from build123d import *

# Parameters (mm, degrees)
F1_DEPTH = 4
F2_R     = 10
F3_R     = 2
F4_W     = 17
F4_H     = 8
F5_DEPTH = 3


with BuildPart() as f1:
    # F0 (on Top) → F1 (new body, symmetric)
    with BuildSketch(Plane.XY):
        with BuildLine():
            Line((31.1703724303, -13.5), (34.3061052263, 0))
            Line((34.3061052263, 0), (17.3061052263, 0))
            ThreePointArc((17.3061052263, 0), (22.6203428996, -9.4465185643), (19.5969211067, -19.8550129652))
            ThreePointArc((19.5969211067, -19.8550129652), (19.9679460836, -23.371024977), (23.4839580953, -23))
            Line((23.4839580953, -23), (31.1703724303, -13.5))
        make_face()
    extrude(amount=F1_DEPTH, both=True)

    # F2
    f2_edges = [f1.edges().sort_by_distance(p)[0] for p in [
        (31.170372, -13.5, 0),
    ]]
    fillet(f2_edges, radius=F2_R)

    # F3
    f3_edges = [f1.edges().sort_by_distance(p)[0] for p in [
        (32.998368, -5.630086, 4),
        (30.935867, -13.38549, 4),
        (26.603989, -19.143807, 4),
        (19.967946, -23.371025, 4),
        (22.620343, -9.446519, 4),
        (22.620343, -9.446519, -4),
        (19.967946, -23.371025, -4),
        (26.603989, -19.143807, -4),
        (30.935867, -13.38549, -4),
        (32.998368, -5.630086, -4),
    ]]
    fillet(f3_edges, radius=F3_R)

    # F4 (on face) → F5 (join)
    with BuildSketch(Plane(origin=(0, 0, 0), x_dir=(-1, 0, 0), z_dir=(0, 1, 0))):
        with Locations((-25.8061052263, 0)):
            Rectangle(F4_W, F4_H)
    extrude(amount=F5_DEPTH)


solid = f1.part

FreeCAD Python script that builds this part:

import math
import FreeCAD as App
import Part
import Sketcher
Q = App.Units.Quantity


def edges_at(feature, points):
    """Names of the edges that pass closest to the given points."""
    edges = feature.Shape.Edges
    near = lambda p: min(range(len(edges)), key=lambda i: edges[i].distToShape(Part.Vertex(*p))[0])
    return sorted({f"Edge{near(p) + 1}" for p in points})


def add_polygon(sketch, points):
    """Adds a closed chain of lines whose ends are joined by coincident constraints."""
    first, n = sketch.GeometryCount, len(points)
    for a, b in zip(points, points[1:] + points[:1]):
        sketch.addGeometry(Part.LineSegment(App.Vector(*a, 0), App.Vector(*b, 0)), False)
    for i in range(n):
        sketch.addConstraint(Sketcher.Constraint("Coincident", first + i, 2, first + (i + 1) % n, 1))

doc = App.newDocument("Part")
params = doc.addObject("Spreadsheet::Sheet", "Params")
for row, (alias, value) in enumerate([
    ("sketch1_radius", "2.5 mm"),
    ("sketch1_width", "17 mm"),
    ("pad1_length", "8 mm"),
    ("fillet_radius", "10 mm"),
    ("fillet2_radius", "2 mm"),
    ("sketch2_width", "17 mm"),
    ("sketch2_height", "8 mm"),
    ("pad2_length", "3 mm"),
], start=1):
    params.set(f"A{row}", alias)
    params.set(f"B{row}", "=" + value)
    params.setAlias(f"B{row}", alias)

body = doc.addObject("PartDesign::Body", "Body")

# Sketch on XY plane
sketch1 = body.newObject("Sketcher::SketchObject", "Sketch")
sketch1.AttachmentSupport = (doc.getObject("XY_Plane"), [""])
sketch1.MapMode = "FlatFace"
sketch1.addGeometry([
    Part.LineSegment(App.Vector(31.170372, -13.5, 0), App.Vector(34.306105, 0, 0)),  # 0
    Part.LineSegment(App.Vector(34.306105, 0, 0), App.Vector(17.306105, 0, 0)),  # 1
    Part.ArcOfCircle(Part.Circle(App.Vector(8.715418, -11.05083, 0), App.Vector(0, 0, 1), 13.997169), math.radians(-38.976192), math.radians(52.139243)),  # 2
    Part.ArcOfCircle(Part.Circle(App.Vector(21.54044, -21.427506, 0), App.Vector(0, 0, 1), 2.5), math.radians(141.023808), math.radians(321.023808)),  # 3
    Part.LineSegment(App.Vector(23.483958, -23, 0), App.Vector(31.170372, -13.5, 0)),  # 4
], False)
sketch1.addConstraint([
    Sketcher.Constraint("Coincident", 0, 2, 1, 1),
    Sketcher.Constraint("Coincident", 1, 2, 2, 2),
    Sketcher.Constraint("Tangent", 2, 1, 3, 1),
    Sketcher.Constraint("Tangent", 3, 2, 4, 1),
    Sketcher.Constraint("Coincident", 4, 2, 0, 1),
    Sketcher.Constraint("Horizontal", 1),
    Sketcher.Constraint("PointOnObject", 0, 2, -1),
    Sketcher.Constraint("Radius", 3, Q("2.5 mm")),
    Sketcher.Constraint("DistanceX", 1, 2, 1, 1, Q("17 mm")),
    Sketcher.Constraint("DistanceY", 3, 2, -1, 1, Q("23 mm")),
    Sketcher.Constraint("DistanceY", 4, 2, -1, 1, Q("13.5 mm")),
    Sketcher.Constraint("Radius", 2, Q("13.997169 mm")),
    Sketcher.Constraint("DistanceX", -1, 1, 2, 3, Q("8.715418 mm")),
    Sketcher.Constraint("DistanceY", 2, 3, -1, 1, Q("11.05083 mm")),
    Sketcher.Constraint("DistanceX", -1, 1, 3, 3, Q("21.54044 mm")),
])
sketch1.setExpression("Constraints[7]", "Params.sketch1_radius")
sketch1.setExpression("Constraints[8]", "Params.sketch1_width")
pad1 = body.newObject("PartDesign::Pad", "Pad")
pad1.Profile = sketch1
pad1.setExpression("Length", "Params.pad1_length")
pad1.Midplane = True
doc.recompute()

fillet = body.newObject("PartDesign::Fillet", "Fillet")
fillet.Base = (pad1, edges_at(pad1, [(31.17, -13.5, 0)]))
fillet.setExpression("Radius", "Params.fillet_radius")
doc.recompute()

fillet2 = body.newObject("PartDesign::Fillet", "Fillet001")
fillet2.Base = (fillet, edges_at(fillet, [
    (32.998, -5.63, 4),
    (30.936, -13.385, 4),
    (26.604, -19.144, 4),
    (19.968, -23.371, 4),
    (22.62, -9.447, 4),
    (22.62, -9.447, -4),
    (19.968, -23.371, -4),
    (26.604, -19.144, -4),
    (30.936, -13.385, -4),
    (32.998, -5.63, -4),
]))
fillet2.setExpression("Radius", "Params.fillet2_radius")

# Sketch on XZ plane
sketch2 = body.newObject("Sketcher::SketchObject", "Sketch001")
sketch2.AttachmentSupport = (doc.getObject("XZ_Plane"), [""])
sketch2.MapMode = "FlatFace"
add_polygon(sketch2, [(34.306105, 4), (34.306105, -4), (17.306105, -4), (17.306105, 4)])  # lines 0-3
sketch2.addConstraint([
    Sketcher.Constraint("Vertical", 0),
    Sketcher.Constraint("Horizontal", 1),
    Sketcher.Constraint("Vertical", 2),
    Sketcher.Constraint("Horizontal", 3),
    Sketcher.Constraint("DistanceX", 1, 2, 1, 1, Q("17 mm")),
    Sketcher.Constraint("DistanceY", 0, 2, 0, 1, Q("8 mm")),
    Sketcher.Constraint("DistanceY", 0, 2, -1, 1, Q("4 mm")),
    Sketcher.Constraint("DistanceX", -1, 1, 0, 2, Q("34.306105 mm")),
])
sketch2.setExpression("Constraints[8]", "Params.sketch2_width")
sketch2.setExpression("Constraints[9]", "Params.sketch2_height")
pad2 = body.newObject("PartDesign::Pad", "Pad001")
pad2.Profile = sketch2
pad2.setExpression("Length", "Params.pad2_length")
pad2.Reversed = True

doc.recompute()
